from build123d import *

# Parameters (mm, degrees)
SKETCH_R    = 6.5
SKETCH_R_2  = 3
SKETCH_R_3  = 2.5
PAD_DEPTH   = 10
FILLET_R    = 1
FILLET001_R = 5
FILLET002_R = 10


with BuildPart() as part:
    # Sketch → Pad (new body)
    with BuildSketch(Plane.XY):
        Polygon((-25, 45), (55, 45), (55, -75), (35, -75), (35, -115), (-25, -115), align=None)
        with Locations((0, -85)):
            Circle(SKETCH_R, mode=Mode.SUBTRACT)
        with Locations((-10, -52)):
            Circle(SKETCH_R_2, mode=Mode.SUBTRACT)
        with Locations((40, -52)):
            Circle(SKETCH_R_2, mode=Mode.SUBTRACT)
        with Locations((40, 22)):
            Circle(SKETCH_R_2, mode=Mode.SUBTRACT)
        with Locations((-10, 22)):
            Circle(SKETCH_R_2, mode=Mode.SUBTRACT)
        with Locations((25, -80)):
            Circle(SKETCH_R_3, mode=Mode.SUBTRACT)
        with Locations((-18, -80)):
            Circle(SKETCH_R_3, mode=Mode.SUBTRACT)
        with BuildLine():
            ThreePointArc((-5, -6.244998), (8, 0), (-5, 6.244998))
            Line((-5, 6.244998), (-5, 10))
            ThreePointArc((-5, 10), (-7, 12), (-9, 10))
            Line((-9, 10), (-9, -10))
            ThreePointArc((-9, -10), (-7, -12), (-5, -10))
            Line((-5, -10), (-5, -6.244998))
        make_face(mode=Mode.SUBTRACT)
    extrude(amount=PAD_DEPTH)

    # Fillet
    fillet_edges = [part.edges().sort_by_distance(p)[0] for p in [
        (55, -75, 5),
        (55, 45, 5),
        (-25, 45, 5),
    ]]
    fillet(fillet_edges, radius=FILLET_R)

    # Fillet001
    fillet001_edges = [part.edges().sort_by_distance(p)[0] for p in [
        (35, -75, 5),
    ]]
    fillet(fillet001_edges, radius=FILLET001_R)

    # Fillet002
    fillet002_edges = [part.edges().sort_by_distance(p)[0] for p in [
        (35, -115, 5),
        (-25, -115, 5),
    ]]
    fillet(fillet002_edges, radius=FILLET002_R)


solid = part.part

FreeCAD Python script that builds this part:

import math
import FreeCAD as App
import Part
import Sketcher
from FreeCAD import Vector
Q = App.Units.Quantity


def edges_at(feature, points):
    """Names of the edges that pass closest to the given points."""
    edges = feature.Shape.Edges
    near = lambda p: min(range(len(edges)), key=lambda i: edges[i].distToShape(Part.Vertex(*p))[0])
    return sorted({f"Edge{near(p) + 1}" for p in points})

doc = App.newDocument("Part")
body = doc.addObject("PartDesign::Body", "Body")

# Sketch on XY plane
sketch1 = body.newObject("Sketcher::SketchObject", "Sketch")
sketch1.AttachmentSupport = (doc.getObject("XY_Plane"), [""])
sketch1.MapMode = "FlatFace"
sketch1.addGeometry(Part.LineSegment(Vector(55, 45, 0), Vector(-25, 45, 0)), False)
sketch1.addGeometry(Part.LineSegment(Vector(-25, 45, 0), Vector(-25, -115, 0)), False)
sketch1.addGeometry(Part.LineSegment(Vector(-25, -115, 0), Vector(35, -115, 0)), False)
sketch1.addGeometry(Part.LineSegment(Vector(35, -115, 0), Vector(35, -75, 0)), False)
sketch1.addGeometry(Part.LineSegment(Vector(35, -75, 0), Vector(55, -75, 0)), False)
sketch1.addGeometry(Part.LineSegment(Vector(55, -75, 0), Vector(55, 45, 0)), False)
sketch1.addGeometry(Part.Circle(Vector(25, -80, 0), Vector(0, 0, 1), 2.5), False)
sketch1.addGeometry(Part.Circle(Vector(40, -52, 0), Vector(0, 0, 1), 3), False)
sketch1.addGeometry(Part.Circle(Vector(0, -85, 0), Vector(0, 0, 1), 6.5), False)
sketch1.addGeometry(Part.Circle(Vector(-18, -80, 0), Vector(0, 0, 1), 2.5), False)
sketch1.addGeometry(Part.Circle(Vector(-10, -52, 0), Vector(0, 0, 1), 3), False)
sketch1.addGeometry(Part.Circle(Vector(40, 22, 0), Vector(0, 0, 1), 3), False)
sketch1.addGeometry(Part.LineSegment(Vector(-5, -6.2, 0), Vector(-5, -10, 0)), False)
sketch1.addGeometry(Part.ArcOfCircle(Part.Circle(Vector(-7, -10, 0), Vector(0, 0, 1), 2), math.radians(180), math.radians(360)), False)
sketch1.addGeometry(Part.LineSegment(Vector(-9, -10, 0), Vector(-9, 10, 0)), False)
sketch1.addGeometry(Part.ArcOfCircle(Part.Circle(Vector(-7, 10, 0), Vector(0, 0, 1), 2), math.radians(0), math.radians(180)), False)
sketch1.addGeometry(Part.LineSegment(Vector(-5, 10, 0), Vector(-5, 6.2, 0)), False)
sketch1.addGeometry(Part.ArcOfCircle(Part.Circle(Vector(0, 0, 0), Vector(0, 0, 1), 8), math.radians(-129), math.radians(129)), False)
sketch1.addGeometry(Part.Circle(Vector(-10, 22, 0), Vector(0, 0, 1), 3), False)
sketch1.addConstraint(Sketcher.Constraint("Coincident", 0, 2, 1, 1))
sketch1.addConstraint(Sketcher.Constraint("Coincident", 1, 2, 2, 1))
sketch1.addConstraint(Sketcher.Constraint("Coincident", 2, 2, 3, 1))
sketch1.addConstraint(Sketcher.Constraint("Coincident", 3, 2, 4, 1))
sketch1.addConstraint(Sketcher.Constraint("Coincident", 4, 2, 5, 1))
sketch1.addConstraint(Sketcher.Constraint("Coincident", 5, 2, 0, 1))
sketch1.addConstraint(Sketcher.Constraint("Tangent", 12, 2, 13, 2))
sketch1.addConstraint(Sketcher.Constraint("Tangent", 13, 1, 14, 1))
sketch1.addConstraint(Sketcher.Constraint("Tangent", 14, 2, 15, 2))
sketch1.addConstraint(Sketcher.Constraint("Tangent", 15, 1, 16, 1))
sketch1.addConstraint(Sketcher.Constraint("Coincident", 16, 2, 17, 2))
sketch1.addConstraint(Sketcher.Constraint("Coincident", 17, 1, 12, 1))
sketch1.addConstraint(Sketcher.Constraint("Horizontal", 0))
sketch1.addConstraint(Sketcher.Constraint("Vertical", 1))
sketch1.addConstraint(Sketcher.Constraint("Horizontal", 2))
sketch1.addConstraint(Sketcher.Constraint("Vertical", 3))
sketch1.addConstraint(Sketcher.Constraint("Horizontal", 4))
sketch1.addConstraint(Sketcher.Constraint("Vertical", 5))
sketch1.addConstraint(Sketcher.Constraint("Vertical", 12))
sketch1.addConstraint(Sketcher.Constraint("Vertical", 14))
sketch1.addConstraint(Sketcher.Constraint("Vertical", 16))
sketch1.addConstraint(Sketcher.Constraint("Coincident", 17, 3, -1, 1))
sketch1.addConstraint(Sketcher.Constraint("Equal", 6, 9))
sketch1.addConstraint(Sketcher.Constraint("Equal", 7, 10))
sketch1.addConstraint(Sketcher.Constraint("Equal", 10, 11))
sketch1.addConstraint(Sketcher.Constraint("Equal", 13, 15))
sketch1.addConstraint(Sketcher.Constraint("Equal", 11, 18))
sketch1.addConstraint(Sketcher.Constraint("PointOnObject", 8, 3, -2))
sketch1.addConstraint(Sketcher.Constraint("Horizontal", 6, 3, 9, 3))
sketch1.addConstraint(Sketcher.Constraint("Horizontal", 7, 3, 10, 3))
sketch1.addConstraint(Sketcher.Constraint("Horizontal", 11, 3, 18, 3))
sketch1.addConstraint(Sketcher.Constraint("Vertical", 7, 3, 11, 3))
sketch1.addConstraint(Sketcher.Constraint("Vertical", 10, 3, 18, 3))
sketch1.addConstraint(Sketcher.Constraint("Equal", 4, 14))
sketch1.addConstraint(Sketcher.Constraint("Equal", 12, 16))
sketch1.addConstraint(Sketcher.Constraint("Diameter", 6, Q("5 mm")))
sketch1.addConstraint(Sketcher.Constraint("Diameter", 7, Q("6 mm")))
sketch1.addConstraint(Sketcher.Constraint("Diameter", 8, Q("13 mm")))
sketch1.addConstraint(Sketcher.Constraint("Radius", 13, Q("2 mm")))
sketch1.addConstraint(Sketcher.Constraint("Radius", 17, Q("8 mm")))
sketch1.addConstraint(Sketcher.Constraint("DistanceX", 0, 2, 0, 1, Q("80 mm")))
sketch1.addConstraint(Sketcher.Constraint("DistanceX", 2, 1, 2, 2, Q("60 mm")))
sketch1.addConstraint(Sketcher.Constraint("DistanceY", 1, 2, 1, 1, Q("160 mm")))
sketch1.addConstraint(Sketcher.Constraint("DistanceY", 3, 1, 3, 2, Q("40 mm")))
sketch1.addConstraint(Sketcher.Constraint("DistanceX", -1, 1, 6, 3, Q("25 mm")))
sketch1.addConstraint(Sketcher.Constraint("DistanceY", 6, 3, -1, 1, Q("80 mm")))
sketch1.addConstraint(Sketcher.Constraint("DistanceX", -1, 1, 7, 3, Q("40 mm")))
sketch1.addConstraint(Sketcher.Constraint("DistanceY", 7, 3, -1, 1, Q("52 mm")))
sketch1.addConstraint(Sketcher.Constraint("DistanceY", 8, 3, -1, 1, Q("85 mm")))
sketch1.addConstraint(Sketcher.Constraint("DistanceX", 9, 3, -1, 1, Q("18 mm")))
sketch1.addConstraint(Sketcher.Constraint("DistanceX", 10, 3, -1, 1, Q("10 mm")))
sketch1.addConstraint(Sketcher.Constraint("DistanceY", -1, 1, 11, 3, Q("22 mm")))
sketch1.addConstraint(Sketcher.Constraint("DistanceX", 13, 3, -1, 1, Q("7 mm")))
sketch1.addConstraint(Sketcher.Constraint("DistanceX", 0, 2, -1, 1, Q("25 mm")))
sketch1.addConstraint(Sketcher.Constraint("DistanceY", -1, 1, 0, 2, Q("45 mm")))
pad1 = body.newObject("PartDesign::Pad", "Pad")
pad1.Profile = sketch1
pad1.Length = 10
doc.recompute()

fillet = body.newObject("PartDesign::Fillet", "Fillet")
fillet.Base = (pad1, edges_at(pad1, [(55, -75, 5), (55, 45, 5), (-25, 45, 5)]))
fillet.Radius = 1
doc.recompute()

fillet2 = body.newObject("PartDesign::Fillet", "Fillet001")
fillet2.Base = (fillet, edges_at(fillet, [(35, -75, 5)]))
fillet2.Radius = 5
doc.recompute()

fillet3 = body.newObject("PartDesign::Fillet", "Fillet002")
fillet3.Base = (fillet2, edges_at(fillet2, [(35, -115, 5), (-25, -115, 5)]))
fillet3.Radius = 10

doc.recompute()
